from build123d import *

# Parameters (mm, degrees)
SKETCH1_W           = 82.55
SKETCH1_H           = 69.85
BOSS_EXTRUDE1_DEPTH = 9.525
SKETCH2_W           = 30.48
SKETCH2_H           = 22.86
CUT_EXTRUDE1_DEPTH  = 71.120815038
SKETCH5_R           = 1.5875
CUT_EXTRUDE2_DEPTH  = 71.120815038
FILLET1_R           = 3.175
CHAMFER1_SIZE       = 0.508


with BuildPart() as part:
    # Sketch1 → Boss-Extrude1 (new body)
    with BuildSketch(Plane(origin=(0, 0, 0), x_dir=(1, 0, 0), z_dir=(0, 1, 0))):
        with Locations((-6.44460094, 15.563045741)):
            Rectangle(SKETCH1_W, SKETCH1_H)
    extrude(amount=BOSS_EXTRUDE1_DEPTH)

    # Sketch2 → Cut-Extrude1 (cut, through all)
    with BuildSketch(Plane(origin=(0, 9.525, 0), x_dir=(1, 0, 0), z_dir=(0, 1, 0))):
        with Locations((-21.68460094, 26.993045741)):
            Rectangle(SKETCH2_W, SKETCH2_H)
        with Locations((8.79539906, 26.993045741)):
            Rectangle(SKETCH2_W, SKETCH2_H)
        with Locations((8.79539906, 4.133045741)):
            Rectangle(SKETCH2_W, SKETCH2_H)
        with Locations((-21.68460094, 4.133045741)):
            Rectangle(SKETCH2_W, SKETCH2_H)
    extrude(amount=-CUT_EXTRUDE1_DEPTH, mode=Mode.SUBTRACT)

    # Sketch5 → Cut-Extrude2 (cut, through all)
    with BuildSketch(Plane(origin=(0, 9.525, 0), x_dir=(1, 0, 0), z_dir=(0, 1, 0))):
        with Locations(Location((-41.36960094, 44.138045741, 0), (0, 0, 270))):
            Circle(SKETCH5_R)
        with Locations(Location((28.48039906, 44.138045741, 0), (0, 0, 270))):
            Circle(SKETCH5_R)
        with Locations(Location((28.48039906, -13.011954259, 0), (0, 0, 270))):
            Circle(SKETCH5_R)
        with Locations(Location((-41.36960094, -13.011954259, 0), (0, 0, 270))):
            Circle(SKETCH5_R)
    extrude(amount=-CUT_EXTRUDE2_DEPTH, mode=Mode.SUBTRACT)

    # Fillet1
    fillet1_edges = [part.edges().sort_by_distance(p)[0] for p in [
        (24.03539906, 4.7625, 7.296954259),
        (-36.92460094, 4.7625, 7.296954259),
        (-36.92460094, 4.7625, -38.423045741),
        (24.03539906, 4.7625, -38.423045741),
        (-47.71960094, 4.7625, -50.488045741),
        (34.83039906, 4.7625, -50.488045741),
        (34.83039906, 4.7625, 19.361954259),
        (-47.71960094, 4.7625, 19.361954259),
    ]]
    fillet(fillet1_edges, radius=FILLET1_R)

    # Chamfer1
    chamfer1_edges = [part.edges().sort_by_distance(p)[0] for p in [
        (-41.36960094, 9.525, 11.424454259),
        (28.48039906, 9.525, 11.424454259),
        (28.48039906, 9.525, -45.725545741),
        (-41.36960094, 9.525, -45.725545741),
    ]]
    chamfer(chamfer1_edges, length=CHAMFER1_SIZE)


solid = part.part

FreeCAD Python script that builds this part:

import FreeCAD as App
import Part
import Sketcher
from FreeCAD import Vector
Q = App.Units.Quantity


def edges_at(feature, points):
    """Names of the edges that pass closest to the given points."""
    edges = feature.Shape.Edges
    near = lambda p: min(range(len(edges)), key=lambda i: edges[i].distToShape(Part.Vertex(*p))[0])
    return sorted({f"Edge{near(p) + 1}" for p in points})


def add_polygon(sketch, points):
    """Adds a closed chain of lines whose ends are joined by coincident constraints."""
    first, n = sketch.GeometryCount, len(points)
    for a, b in zip(points, points[1:] + points[:1]):
        sketch.addGeometry(Part.LineSegment(App.Vector(*a, 0), App.Vector(*b, 0)), False)
    for i in range(n):
        sketch.addConstraint(Sketcher.Constraint("Coincident", first + i, 2, first + (i + 1) % n, 1))

doc = App.newDocument("Part")
body = doc.addObject("PartDesign::Body", "Body")

sketch1 = body.newObject("Sketcher::SketchObject", "Sketch")
sketch1.AttachmentSupport = (doc.getObject("XZ_Plane"), [""])
sketch1.MapMode = "FlatFace"
add_polygon(sketch1, [(-48, -50), (-48, 19), (35, 19), (35, -50)])
sketch1.addConstraint(Sketcher.Constraint("Vertical", 0))
sketch1.addConstraint(Sketcher.Constraint("Horizontal", 1))
sketch1.addConstraint(Sketcher.Constraint("Vertical", 2))
sketch1.addConstraint(Sketcher.Constraint("Horizontal", 3))
sketch1.addConstraint(Sketcher.Constraint("DistanceX", 1, 1, 1, 2, Q("3.25 in")))
sketch1.addConstraint(Sketcher.Constraint("DistanceY", 0, 1, 0, 2, Q("2.75 in")))
sketch1.addConstraint(Sketcher.Constraint("DistanceX", 0, 2, -1, 1, Q("47.719601 mm")))
sketch1.addConstraint(Sketcher.Constraint("DistanceY", -1, 1, 0, 2, Q("19.361954 mm")))
pad1 = body.newObject("PartDesign::Pad", "Pad")
pad1.Profile = sketch1
pad1.Length = Q("0.375 in")
pad1.Reversed = True

sketch2 = body.newObject("Sketcher::SketchObject", "Sketch001")
sketch2.AttachmentSupport = (doc.getObject("XZ_Plane"), [""])
sketch2.MapMode = "FlatFace"
sketch2.AttachmentOffset = App.Placement(Vector(0, 0, -0.375 * 25.4), App.Rotation())
add_polygon(sketch2, [(-37, -38), (-37, 7), (24, 7), (24, -38)])
sketch2.addConstraint(Sketcher.Constraint("Vertical", 0))
sketch2.addConstraint(Sketcher.Constraint("Horizontal", 1))
sketch2.addConstraint(Sketcher.Constraint("Vertical", 2))
sketch2.addConstraint(Sketcher.Constraint("Horizontal", 3))
sketch2.addConstraint(Sketcher.Constraint("DistanceX", 1, 1, 1, 2, Q("2.4 in")))
sketch2.addConstraint(Sketcher.Constraint("DistanceY", 0, 1, 0, 2, Q("1.8 in")))
sketch2.addConstraint(Sketcher.Constraint("DistanceX", 0, 2, -1, 1, Q("36.924601 mm")))
sketch2.addConstraint(Sketcher.Constraint("DistanceY", -1, 1, 0, 2, Q("7.296954 mm")))
pocket1 = body.newObject("PartDesign::Pocket", "Pocket")
pocket1.Profile = sketch2
pocket1.Type = "ThroughAll"
pocket1.Reversed = True

sketch3 = body.newObject("Sketcher::SketchObject", "Sketch002")
sketch3.AttachmentSupport = (doc.getObject("XZ_Plane"), [""])
sketch3.MapMode = "FlatFace"
sketch3.AttachmentOffset = App.Placement(Vector(0, 0, -0.375 * 25.4), App.Rotation())
sketch3.addGeometry(Part.Circle(Vector(-41.4, -44.1, 0), Vector(0, 0, 1), 1.6), False)
sketch3.addGeometry(Part.Circle(Vector(28.5, -44.1, 0), Vector(0, 0, 1), 1.6), False)
sketch3.addGeometry(Part.Circle(Vector(28.5, 13, 0), Vector(0, 0, 1), 1.6), False)
sketch3.addGeometry(Part.Circle(Vector(-41.4, 13, 0), Vector(0, 0, 1), 1.6), False)
sketch3.addConstraint(Sketcher.Constraint("Equal", 0, 1))
sketch3.addConstraint(Sketcher.Constraint("Equal", 1, 2))
sketch3.addConstraint(Sketcher.Constraint("Equal", 2, 3))
sketch3.addConstraint(Sketcher.Constraint("Horizontal", 0, 3, 1, 3))
sketch3.addConstraint(Sketcher.Constraint("Horizontal", 2, 3, 3, 3))
sketch3.addConstraint(Sketcher.Constraint("Vertical", 1, 3, 2, 3))
sketch3.addConstraint(Sketcher.Constraint("Vertical", 0, 3, 3, 3))
sketch3.addConstraint(Sketcher.Constraint("Diameter", 0, Q("0.125 in")))
sketch3.addConstraint(Sketcher.Constraint("DistanceX", 0, 3, 1, 3, Q("2.75 in")))
sketch3.addConstraint(Sketcher.Constraint("DistanceY", 1, 3, 2, 3, Q("2.25 in")))
sketch3.addConstraint(Sketcher.Constraint("DistanceX", 0, 3, -1, 1, Q("41.369601 mm")))
sketch3.addConstraint(Sketcher.Constraint("DistanceY", 0, 3, -1, 1, Q("44.138046 mm")))
pocket2 = body.newObject("PartDesign::Pocket", "Pocket001")
pocket2.Profile = sketch3
pocket2.Type = "ThroughAll"
pocket2.Reversed = True
doc.recompute()

fillet = body.newObject("PartDesign::Fillet", "Fillet")
fillet.Base = (pocket2, edges_at(pocket2, [
    (24.035, 4.763, 7.297),
    (-36.925, 4.763, 7.297),
    (-36.925, 4.763, -38.423),
    (24.035, 4.763, -38.423),
    (-47.72, 4.763, -50.488),
    (34.83, 4.763, -50.488),
    (34.83, 4.763, 19.362),
    (-47.72, 4.763, 19.362),
]))
fillet.Radius = Q("0.125 in")
doc.recompute()

chamfer = body.newObject("PartDesign::Chamfer", "Chamfer")
chamfer.Base = (fillet, edges_at(fillet, [
    (-41.37, 9.525, 11.424),
    (28.48, 9.525, 11.424),
    (28.48, 9.525, -45.726),
    (-41.37, 9.525, -45.726),
]))
chamfer.Size = Q("0.02 in")

doc.recompute()
